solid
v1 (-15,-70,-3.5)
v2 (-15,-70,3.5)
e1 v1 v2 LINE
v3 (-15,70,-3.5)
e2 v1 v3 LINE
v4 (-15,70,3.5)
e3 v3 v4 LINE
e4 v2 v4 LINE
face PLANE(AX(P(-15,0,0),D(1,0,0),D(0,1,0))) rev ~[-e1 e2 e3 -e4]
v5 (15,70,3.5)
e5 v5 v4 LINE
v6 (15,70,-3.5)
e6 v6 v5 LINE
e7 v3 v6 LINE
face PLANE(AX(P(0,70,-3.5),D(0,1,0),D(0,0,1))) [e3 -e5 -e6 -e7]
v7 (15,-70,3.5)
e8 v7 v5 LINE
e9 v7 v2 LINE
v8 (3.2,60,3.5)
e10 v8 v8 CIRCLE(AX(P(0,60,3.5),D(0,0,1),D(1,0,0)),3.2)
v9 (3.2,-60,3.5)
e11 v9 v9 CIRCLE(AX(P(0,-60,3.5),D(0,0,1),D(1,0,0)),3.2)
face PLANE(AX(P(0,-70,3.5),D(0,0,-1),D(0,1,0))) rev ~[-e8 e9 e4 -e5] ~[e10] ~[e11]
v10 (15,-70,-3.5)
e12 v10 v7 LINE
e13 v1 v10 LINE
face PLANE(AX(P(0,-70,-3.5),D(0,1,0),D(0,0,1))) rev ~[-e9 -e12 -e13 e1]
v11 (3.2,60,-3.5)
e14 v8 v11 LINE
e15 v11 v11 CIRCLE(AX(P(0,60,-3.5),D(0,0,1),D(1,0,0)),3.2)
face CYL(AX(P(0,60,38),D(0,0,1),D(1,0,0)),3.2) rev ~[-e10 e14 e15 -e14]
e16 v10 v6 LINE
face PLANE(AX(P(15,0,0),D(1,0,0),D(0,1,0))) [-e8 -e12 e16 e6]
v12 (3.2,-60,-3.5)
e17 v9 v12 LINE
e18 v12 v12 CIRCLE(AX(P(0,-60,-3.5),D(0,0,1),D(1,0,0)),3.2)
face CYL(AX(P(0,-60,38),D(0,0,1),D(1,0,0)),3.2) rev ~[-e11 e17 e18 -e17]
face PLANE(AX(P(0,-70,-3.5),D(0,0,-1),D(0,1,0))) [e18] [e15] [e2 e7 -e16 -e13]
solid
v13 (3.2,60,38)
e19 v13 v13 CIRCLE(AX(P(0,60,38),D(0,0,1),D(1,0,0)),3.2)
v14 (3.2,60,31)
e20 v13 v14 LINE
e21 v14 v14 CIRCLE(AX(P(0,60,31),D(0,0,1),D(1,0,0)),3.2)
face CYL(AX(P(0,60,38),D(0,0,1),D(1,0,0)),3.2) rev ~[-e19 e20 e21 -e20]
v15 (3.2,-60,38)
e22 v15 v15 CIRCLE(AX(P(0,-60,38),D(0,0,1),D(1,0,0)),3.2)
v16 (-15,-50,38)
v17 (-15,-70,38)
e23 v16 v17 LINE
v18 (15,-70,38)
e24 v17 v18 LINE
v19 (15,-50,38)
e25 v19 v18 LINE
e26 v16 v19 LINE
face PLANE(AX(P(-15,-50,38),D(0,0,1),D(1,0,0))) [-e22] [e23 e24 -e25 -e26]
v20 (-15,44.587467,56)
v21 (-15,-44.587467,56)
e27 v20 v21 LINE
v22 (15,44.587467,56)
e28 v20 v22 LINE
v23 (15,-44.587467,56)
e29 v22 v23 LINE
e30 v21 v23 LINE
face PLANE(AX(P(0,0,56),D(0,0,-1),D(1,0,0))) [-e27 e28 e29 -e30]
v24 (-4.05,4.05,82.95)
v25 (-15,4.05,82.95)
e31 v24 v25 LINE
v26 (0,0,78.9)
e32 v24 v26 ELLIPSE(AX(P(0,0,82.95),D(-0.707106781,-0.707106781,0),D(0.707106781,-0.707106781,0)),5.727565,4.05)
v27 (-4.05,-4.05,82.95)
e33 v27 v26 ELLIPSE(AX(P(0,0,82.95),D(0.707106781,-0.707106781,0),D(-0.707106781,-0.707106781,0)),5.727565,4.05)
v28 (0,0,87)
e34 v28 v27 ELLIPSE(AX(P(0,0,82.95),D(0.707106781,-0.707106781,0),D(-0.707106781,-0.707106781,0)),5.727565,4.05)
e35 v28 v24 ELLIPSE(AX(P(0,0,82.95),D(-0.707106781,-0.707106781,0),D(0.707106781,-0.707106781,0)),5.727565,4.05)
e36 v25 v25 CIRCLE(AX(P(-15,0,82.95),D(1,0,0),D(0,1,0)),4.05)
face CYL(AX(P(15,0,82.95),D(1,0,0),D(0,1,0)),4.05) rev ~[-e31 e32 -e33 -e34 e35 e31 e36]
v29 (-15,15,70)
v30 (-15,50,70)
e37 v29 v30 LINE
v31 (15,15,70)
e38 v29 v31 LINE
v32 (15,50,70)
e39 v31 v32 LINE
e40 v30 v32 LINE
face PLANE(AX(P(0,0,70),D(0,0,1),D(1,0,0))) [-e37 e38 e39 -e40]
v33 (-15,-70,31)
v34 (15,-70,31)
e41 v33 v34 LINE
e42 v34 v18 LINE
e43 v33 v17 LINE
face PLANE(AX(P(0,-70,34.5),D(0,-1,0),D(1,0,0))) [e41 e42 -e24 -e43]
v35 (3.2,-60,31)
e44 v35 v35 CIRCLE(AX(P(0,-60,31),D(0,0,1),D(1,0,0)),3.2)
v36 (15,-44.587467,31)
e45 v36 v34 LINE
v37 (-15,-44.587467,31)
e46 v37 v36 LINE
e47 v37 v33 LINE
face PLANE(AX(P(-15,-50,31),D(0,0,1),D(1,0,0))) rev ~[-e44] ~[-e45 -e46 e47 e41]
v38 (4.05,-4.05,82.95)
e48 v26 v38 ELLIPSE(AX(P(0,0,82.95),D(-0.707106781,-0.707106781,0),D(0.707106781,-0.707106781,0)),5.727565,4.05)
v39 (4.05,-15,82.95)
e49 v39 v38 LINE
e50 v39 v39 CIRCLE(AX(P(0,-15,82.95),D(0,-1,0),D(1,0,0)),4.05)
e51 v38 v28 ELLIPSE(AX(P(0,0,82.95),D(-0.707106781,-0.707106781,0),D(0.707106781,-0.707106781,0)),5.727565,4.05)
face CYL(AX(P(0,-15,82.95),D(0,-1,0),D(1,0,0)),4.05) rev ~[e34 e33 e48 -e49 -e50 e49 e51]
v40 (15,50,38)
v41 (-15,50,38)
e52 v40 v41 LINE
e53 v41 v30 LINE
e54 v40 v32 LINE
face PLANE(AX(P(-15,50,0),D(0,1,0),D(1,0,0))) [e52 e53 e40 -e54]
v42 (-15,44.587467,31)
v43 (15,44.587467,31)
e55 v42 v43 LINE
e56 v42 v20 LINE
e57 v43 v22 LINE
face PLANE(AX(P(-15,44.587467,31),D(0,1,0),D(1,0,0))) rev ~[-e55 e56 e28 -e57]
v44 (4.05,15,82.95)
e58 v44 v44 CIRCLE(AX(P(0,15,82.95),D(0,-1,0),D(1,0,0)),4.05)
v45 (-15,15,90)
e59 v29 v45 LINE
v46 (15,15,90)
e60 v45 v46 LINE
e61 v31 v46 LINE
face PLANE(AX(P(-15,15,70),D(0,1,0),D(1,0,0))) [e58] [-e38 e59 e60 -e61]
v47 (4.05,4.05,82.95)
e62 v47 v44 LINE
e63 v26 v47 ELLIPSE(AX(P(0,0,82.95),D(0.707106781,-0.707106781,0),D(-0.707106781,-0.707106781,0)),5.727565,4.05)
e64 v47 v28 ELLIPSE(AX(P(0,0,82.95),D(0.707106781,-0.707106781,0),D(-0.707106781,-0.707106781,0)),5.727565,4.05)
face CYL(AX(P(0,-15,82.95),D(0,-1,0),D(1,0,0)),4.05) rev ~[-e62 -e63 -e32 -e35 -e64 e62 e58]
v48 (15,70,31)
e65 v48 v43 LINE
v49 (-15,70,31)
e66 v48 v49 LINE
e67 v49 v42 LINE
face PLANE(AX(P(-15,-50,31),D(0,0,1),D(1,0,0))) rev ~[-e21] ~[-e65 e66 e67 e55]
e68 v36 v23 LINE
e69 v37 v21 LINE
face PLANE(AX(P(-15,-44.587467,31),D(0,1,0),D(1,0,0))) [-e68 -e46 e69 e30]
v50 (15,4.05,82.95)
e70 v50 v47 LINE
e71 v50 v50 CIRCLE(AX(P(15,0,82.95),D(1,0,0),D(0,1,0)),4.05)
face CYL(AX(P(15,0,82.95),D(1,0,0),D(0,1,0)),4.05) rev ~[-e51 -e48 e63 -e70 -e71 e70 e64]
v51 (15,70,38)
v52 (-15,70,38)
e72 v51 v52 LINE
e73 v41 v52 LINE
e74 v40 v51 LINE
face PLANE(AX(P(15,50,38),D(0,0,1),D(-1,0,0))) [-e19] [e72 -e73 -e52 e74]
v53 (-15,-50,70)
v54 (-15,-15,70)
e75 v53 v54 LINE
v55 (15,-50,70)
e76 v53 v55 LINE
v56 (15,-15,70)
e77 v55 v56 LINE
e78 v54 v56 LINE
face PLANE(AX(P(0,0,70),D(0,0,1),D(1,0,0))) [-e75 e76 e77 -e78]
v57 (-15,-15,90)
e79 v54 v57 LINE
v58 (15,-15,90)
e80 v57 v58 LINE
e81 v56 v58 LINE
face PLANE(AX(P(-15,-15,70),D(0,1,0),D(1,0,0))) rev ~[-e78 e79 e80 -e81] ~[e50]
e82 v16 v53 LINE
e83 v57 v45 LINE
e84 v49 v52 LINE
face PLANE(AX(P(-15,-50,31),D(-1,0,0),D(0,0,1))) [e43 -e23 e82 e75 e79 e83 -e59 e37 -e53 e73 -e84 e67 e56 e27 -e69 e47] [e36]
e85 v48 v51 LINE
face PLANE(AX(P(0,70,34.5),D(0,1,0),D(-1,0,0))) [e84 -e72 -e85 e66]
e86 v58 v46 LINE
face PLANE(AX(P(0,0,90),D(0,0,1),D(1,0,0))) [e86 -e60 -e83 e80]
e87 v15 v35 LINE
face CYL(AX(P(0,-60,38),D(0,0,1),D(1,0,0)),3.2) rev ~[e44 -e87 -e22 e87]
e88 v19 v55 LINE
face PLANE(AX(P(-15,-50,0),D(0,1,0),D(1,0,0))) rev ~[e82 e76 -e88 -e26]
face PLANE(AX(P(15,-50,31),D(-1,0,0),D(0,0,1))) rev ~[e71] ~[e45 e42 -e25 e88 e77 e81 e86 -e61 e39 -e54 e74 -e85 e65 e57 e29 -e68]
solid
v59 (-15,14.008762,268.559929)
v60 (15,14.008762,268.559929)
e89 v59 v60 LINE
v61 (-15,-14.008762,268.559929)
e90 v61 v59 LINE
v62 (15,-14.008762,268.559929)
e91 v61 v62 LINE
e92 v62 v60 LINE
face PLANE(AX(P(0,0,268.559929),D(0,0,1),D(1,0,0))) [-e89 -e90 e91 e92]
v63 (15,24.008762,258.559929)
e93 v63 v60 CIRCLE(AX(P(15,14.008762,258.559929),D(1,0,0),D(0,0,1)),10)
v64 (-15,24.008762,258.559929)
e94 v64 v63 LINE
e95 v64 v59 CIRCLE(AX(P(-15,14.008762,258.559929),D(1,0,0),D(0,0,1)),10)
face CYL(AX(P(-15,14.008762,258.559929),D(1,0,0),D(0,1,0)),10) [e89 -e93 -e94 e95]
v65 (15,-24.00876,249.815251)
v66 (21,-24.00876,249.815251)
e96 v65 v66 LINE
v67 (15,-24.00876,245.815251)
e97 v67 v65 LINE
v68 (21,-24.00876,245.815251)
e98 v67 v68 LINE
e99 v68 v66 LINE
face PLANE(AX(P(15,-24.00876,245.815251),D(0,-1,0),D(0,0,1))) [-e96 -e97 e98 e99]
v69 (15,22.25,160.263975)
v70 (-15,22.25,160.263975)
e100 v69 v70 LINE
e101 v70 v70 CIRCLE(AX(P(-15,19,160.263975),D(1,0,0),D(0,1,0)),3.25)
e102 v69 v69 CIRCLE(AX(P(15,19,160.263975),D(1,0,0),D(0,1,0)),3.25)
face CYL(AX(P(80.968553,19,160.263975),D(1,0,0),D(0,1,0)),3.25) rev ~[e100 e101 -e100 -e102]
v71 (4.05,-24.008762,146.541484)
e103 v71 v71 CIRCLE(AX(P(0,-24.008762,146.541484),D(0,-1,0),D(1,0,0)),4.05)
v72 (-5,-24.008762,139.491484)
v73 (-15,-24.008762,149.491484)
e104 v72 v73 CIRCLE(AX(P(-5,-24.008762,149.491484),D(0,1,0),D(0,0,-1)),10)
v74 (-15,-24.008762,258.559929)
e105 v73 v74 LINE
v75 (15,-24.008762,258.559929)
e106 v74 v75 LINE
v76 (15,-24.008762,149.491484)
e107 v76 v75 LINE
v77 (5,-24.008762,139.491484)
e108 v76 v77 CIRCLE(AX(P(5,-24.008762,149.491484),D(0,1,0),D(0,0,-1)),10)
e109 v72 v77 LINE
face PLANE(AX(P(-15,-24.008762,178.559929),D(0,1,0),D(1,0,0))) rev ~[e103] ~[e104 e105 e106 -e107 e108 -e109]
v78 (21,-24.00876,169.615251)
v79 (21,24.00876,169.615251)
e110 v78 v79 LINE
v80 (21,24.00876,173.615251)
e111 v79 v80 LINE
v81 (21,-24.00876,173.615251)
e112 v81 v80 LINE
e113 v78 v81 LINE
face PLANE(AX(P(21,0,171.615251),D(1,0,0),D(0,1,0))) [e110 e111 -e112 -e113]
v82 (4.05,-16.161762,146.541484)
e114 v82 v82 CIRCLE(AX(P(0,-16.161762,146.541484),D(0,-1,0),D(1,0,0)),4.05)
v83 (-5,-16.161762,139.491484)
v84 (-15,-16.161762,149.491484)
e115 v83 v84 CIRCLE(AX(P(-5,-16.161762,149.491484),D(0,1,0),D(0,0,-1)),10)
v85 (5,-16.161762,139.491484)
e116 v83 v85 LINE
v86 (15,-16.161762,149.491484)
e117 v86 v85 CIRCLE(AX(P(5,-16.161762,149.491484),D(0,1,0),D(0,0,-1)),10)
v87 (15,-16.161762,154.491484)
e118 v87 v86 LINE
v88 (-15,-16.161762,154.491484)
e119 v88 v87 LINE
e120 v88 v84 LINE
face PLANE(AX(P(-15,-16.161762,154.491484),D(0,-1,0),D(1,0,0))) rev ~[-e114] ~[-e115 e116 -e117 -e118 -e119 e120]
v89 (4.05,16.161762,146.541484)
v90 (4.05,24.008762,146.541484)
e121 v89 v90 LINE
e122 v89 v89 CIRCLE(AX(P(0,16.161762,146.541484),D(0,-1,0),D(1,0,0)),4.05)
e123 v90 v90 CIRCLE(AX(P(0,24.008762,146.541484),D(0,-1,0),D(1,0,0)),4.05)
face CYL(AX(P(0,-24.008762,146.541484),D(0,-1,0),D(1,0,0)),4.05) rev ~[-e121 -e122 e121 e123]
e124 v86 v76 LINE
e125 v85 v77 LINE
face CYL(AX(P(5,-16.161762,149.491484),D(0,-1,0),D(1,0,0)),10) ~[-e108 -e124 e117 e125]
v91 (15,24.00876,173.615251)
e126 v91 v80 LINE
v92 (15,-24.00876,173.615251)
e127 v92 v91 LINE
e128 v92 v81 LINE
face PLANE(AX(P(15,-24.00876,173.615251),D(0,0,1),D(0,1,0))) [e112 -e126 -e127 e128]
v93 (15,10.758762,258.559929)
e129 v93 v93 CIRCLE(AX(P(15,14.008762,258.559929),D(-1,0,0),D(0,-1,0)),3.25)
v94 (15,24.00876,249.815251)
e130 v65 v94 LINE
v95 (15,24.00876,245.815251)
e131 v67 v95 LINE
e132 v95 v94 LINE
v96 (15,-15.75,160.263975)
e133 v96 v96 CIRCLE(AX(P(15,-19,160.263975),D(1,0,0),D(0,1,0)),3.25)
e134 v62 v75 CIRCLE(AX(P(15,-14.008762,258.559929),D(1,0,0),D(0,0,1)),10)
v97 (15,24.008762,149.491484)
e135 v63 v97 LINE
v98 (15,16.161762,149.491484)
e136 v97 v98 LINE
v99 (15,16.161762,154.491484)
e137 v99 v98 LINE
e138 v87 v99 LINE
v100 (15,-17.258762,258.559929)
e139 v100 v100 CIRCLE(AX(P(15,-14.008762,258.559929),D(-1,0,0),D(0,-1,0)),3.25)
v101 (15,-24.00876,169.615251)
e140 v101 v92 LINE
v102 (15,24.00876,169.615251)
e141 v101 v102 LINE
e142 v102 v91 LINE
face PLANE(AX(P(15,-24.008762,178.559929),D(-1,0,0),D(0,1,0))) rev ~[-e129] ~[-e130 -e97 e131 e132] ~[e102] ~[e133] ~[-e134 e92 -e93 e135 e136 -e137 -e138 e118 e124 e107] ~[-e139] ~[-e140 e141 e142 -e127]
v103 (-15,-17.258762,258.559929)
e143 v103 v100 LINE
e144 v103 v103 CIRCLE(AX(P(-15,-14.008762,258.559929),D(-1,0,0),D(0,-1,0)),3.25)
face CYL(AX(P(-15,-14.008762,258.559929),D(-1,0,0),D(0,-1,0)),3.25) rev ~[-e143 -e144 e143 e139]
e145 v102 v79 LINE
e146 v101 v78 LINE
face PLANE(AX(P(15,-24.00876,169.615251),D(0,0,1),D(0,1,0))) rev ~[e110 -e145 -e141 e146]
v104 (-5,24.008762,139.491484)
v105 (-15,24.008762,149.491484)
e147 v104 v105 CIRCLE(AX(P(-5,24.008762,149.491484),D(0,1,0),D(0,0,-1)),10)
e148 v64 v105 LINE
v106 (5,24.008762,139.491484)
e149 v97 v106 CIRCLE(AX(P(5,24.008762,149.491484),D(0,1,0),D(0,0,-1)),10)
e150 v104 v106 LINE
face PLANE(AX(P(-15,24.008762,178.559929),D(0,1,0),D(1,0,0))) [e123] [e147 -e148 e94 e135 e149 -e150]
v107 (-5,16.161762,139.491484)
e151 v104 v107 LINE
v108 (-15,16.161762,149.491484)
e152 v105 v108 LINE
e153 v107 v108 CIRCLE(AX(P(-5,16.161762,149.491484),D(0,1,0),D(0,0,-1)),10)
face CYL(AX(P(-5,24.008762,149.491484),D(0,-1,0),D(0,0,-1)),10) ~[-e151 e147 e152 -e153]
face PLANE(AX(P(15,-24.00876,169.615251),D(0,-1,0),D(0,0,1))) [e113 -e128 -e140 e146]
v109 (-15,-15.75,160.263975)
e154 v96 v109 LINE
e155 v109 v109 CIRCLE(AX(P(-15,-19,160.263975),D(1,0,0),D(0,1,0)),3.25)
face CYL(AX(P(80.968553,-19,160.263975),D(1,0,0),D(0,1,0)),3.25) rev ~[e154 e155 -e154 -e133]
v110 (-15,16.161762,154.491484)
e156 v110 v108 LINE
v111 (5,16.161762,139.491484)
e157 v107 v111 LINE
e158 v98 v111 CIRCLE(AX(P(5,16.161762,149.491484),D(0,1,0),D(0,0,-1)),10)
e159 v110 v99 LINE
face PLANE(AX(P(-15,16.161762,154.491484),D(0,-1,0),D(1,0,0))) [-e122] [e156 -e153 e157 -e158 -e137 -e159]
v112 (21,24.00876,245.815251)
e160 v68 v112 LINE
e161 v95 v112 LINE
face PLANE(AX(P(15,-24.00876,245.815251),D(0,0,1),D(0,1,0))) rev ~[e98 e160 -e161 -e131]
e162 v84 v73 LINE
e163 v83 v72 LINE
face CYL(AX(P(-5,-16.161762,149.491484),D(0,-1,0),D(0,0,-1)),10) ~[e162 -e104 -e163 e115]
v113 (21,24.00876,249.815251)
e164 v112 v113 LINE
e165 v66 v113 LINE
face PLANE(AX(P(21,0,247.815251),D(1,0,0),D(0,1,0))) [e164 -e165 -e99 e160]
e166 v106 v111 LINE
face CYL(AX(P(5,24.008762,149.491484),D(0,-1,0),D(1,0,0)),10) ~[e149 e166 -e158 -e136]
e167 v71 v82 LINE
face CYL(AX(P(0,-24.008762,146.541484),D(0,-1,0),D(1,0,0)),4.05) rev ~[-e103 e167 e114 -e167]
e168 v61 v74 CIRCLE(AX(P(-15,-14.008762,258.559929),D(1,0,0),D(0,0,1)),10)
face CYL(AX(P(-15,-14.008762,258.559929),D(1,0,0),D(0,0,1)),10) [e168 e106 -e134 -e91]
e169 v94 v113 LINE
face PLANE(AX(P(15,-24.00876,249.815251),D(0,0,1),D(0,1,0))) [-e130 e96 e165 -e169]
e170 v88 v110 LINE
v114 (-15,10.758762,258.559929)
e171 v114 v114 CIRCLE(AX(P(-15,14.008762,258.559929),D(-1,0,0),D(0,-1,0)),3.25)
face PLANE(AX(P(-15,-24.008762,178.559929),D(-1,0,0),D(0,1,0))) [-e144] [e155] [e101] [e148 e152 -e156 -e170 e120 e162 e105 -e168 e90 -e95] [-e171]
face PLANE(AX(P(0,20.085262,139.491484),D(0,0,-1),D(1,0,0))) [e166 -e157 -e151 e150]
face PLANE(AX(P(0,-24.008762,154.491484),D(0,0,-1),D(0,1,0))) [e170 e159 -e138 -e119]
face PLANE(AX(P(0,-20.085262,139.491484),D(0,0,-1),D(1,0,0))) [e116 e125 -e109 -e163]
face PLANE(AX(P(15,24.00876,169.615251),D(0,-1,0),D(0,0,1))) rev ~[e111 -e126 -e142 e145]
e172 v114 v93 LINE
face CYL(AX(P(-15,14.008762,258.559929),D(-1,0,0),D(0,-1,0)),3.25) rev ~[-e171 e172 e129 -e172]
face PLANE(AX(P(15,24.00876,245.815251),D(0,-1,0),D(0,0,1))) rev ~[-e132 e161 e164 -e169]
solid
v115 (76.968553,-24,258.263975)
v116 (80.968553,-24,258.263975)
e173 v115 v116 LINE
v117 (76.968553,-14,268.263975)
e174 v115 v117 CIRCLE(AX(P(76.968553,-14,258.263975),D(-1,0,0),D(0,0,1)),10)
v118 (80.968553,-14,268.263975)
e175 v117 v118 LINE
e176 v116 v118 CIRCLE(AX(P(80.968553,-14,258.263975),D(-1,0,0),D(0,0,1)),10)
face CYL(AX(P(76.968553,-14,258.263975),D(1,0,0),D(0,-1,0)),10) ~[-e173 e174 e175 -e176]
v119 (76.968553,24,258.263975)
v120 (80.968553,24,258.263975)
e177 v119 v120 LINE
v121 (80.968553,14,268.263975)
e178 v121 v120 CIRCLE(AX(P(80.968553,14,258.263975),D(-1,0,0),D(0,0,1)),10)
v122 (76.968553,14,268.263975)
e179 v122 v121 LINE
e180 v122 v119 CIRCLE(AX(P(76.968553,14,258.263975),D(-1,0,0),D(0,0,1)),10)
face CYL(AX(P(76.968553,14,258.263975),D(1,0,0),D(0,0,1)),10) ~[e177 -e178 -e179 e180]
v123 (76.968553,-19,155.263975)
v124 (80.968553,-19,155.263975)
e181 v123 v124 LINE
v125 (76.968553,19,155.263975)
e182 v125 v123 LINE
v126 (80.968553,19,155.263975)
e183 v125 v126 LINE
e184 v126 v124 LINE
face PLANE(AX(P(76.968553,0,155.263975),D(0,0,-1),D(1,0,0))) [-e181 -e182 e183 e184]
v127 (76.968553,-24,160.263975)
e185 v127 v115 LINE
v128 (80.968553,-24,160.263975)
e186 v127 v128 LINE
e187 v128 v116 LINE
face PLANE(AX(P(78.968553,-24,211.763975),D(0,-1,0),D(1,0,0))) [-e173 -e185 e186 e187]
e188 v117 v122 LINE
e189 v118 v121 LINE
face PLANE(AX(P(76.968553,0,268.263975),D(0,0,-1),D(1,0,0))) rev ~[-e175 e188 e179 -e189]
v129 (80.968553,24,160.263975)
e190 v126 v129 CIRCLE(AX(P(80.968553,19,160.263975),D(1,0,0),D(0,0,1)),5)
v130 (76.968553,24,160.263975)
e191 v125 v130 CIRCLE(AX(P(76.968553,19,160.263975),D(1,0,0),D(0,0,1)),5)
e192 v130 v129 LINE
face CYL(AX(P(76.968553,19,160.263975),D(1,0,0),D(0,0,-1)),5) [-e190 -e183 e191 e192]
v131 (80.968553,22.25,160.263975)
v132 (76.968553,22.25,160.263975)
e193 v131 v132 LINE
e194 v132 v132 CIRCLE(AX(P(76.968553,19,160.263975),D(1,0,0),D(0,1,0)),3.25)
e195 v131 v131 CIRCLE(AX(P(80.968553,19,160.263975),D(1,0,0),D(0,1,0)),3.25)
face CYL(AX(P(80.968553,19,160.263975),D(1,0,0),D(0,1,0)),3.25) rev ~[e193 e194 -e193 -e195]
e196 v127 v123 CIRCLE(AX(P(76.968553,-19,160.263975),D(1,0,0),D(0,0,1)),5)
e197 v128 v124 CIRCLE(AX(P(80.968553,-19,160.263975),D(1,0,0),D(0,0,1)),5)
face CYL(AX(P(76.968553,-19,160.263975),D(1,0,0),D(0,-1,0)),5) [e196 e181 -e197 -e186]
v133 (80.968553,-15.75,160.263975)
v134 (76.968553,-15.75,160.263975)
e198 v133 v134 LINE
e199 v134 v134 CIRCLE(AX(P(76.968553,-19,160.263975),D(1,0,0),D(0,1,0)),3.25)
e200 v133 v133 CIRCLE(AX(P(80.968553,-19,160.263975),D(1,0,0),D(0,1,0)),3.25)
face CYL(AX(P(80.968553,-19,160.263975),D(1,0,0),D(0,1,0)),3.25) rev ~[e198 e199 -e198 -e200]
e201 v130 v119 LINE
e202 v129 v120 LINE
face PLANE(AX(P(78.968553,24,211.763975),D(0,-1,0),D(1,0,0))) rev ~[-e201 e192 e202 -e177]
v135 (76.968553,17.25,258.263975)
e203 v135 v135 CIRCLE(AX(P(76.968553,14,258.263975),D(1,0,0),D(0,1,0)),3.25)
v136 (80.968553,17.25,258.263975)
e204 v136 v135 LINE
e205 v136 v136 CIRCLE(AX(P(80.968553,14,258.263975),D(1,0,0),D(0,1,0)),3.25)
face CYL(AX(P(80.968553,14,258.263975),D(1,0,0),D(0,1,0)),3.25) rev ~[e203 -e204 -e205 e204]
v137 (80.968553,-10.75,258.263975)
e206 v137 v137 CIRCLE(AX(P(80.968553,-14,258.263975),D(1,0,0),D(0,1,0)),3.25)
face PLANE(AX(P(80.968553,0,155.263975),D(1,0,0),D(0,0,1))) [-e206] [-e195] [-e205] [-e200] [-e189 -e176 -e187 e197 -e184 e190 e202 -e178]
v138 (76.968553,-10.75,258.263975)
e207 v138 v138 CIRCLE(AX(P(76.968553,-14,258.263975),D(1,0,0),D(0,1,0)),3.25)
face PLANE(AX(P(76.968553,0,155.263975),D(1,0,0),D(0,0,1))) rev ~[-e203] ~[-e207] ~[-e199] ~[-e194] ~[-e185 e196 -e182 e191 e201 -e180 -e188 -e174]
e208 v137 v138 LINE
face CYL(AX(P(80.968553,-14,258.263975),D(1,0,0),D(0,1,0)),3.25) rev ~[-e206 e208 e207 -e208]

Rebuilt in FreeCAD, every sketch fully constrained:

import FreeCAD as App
import Part
import Sketcher
from FreeCAD import Vector


def edges_at(feature, points):
    """Names of the edges that pass closest to the given points."""
    edges = feature.Shape.Edges
    near = lambda p: min(range(len(edges)), key=lambda i: edges[i].distToShape(Part.Vertex(*p))[0])
    return sorted({f"Edge{near(p) + 1}" for p in points})

doc = App.newDocument("Part")
body = doc.addObject("PartDesign::Body", "Body")

sketch1 = body.newObject("Sketcher::SketchObject", "Sketch")
sketch1.AttachmentSupport = (doc.getObject("XY_Plane"), [""])
sketch1.MapMode = "FlatFace"
sketch1.addGeometry([
    Part.LineSegment(Vector(-15, 50, 0), Vector(-15, -50, 0)),
    Part.LineSegment(Vector(-15, -50, 0), Vector(15, -50, 0)),
    Part.LineSegment(Vector(15, -50, 0), Vector(15, 50, 0)),
    Part.LineSegment(Vector(15, 50, 0), Vector(-15, 50, 0)),
], False)
sketch1.addConstraint([
    Sketcher.Constraint("Coincident", 0, 2, 1, 1),
    Sketcher.Constraint("Coincident", 1, 2, 2, 1),
    Sketcher.Constraint("Coincident", 2, 2, 3, 1),
    Sketcher.Constraint("Coincident", 3, 2, 0, 1),
    Sketcher.Constraint("Vertical", 0),
    Sketcher.Constraint("Horizontal", 1),
    Sketcher.Constraint("Vertical", 2),
    Sketcher.Constraint("Horizontal", 3),
    Sketcher.Constraint("Symmetric", 0, 2, 2, 2, -1, 1),
    Sketcher.Constraint("DistanceX", 1, 1, 1, 2, 30.0),
    Sketcher.Constraint("DistanceY", 0, 2, 0, 1, 100.0),
])
pad1 = body.newObject("PartDesign::Pad", "Pad")
pad1.Profile = sketch1
pad1.Length = 70

sketch2 = body.newObject("Sketcher::SketchObject", "Sketch001")
sketch2.AttachmentSupport = (doc.getObject("XY_Plane"), [""])
sketch2.MapMode = "FlatFace"
sketch2.AttachmentOffset = App.Placement(Vector(0, 0, 70), App.Rotation())
sketch2.addGeometry([
    Part.LineSegment(Vector(-15, 15, 0), Vector(-15, -15, 0)),
    Part.LineSegment(Vector(-15, -15, 0), Vector(15, -15, 0)),
    Part.LineSegment(Vector(15, -15, 0), Vector(15, 15, 0)),
    Part.LineSegment(Vector(15, 15, 0), Vector(-15, 15, 0)),
], False)
sketch2.addConstraint([
    Sketcher.Constraint("Coincident", 0, 2, 1, 1),
    Sketcher.Constraint("Coincident", 1, 2, 2, 1),
    Sketcher.Constraint("Coincident", 2, 2, 3, 1),
    Sketcher.Constraint("Coincident", 3, 2, 0, 1),
    Sketcher.Constraint("Vertical", 0),
    Sketcher.Constraint("Horizontal", 1),
    Sketcher.Constraint("Vertical", 2),
    Sketcher.Constraint("Horizontal", 3),
    Sketcher.Constraint("Symmetric", 0, 2, 2, 2, -1, 1),
    Sketcher.Constraint("Equal", 3, 0),
    Sketcher.Constraint("DistanceX", 1, 1, 1, 2, 30.0),
])
pad2 = body.newObject("PartDesign::Pad", "Pad001")
pad2.Profile = sketch2
pad2.Length = 20

sketch3 = body.newObject("Sketcher::SketchObject", "Sketch002")
sketch3.AttachmentSupport = (doc.getObject("XZ_Plane"), [""])
sketch3.MapMode = "FlatFace"
sketch3.AttachmentOffset = App.Placement(Vector(0, 0, 15), App.Rotation())
sketch3.addGeometry(Part.Circle(Vector(0, 83, 0), Vector(0, 0, 1), 4), False)
sketch3.addConstraint([
    Sketcher.Constraint("PointOnObject", 0, 3, -2),
    Sketcher.Constraint("Diameter", 0, 8.1),
    Sketcher.Constraint("DistanceY", -1, 1, 0, 3, 82.95),
])
pocket1 = body.newObject("PartDesign::Pocket", "Pocket")
pocket1.Profile = sketch3
pocket1.Length = 31.5

sketch4 = body.newObject("Sketcher::SketchObject", "Sketch003")
sketch4.AttachmentSupport = (doc.getObject("XY_Plane"), [""])
sketch4.MapMode = "FlatFace"
sketch4.addGeometry([
    Part.LineSegment(Vector(-15, -50, 0), Vector(-15, 50, 0)),
    Part.LineSegment(Vector(-15, 50, 0), Vector(15, 50, 0)),
    Part.LineSegment(Vector(15, 50, 0), Vector(15, -50, 0)),
    Part.LineSegment(Vector(15, -50, 0), Vector(-15, -50, 0)),
], False)
sketch4.addConstraint([
    Sketcher.Constraint("Coincident", 0, 2, 1, 1),
    Sketcher.Constraint("Coincident", 1, 2, 2, 1),
    Sketcher.Constraint("Coincident", 2, 2, 3, 1),
    Sketcher.Constraint("Coincident", 3, 2, 0, 1),
    Sketcher.Constraint("Vertical", 0),
    Sketcher.Constraint("Horizontal", 1),
    Sketcher.Constraint("Vertical", 2),
    Sketcher.Constraint("Horizontal", 3),
    Sketcher.Constraint("Symmetric", 0, 2, 2, 2, -1, 1),
    Sketcher.Constraint("DistanceX", 1, 1, 1, 2, 30.0),
    Sketcher.Constraint("DistanceY", 0, 1, 0, 2, 100.0),
])
pocket2 = body.newObject("PartDesign::Pocket", "Pocket001")
pocket2.Profile = sketch4
pocket2.Length = 31
pocket2.Reversed = True

sketch5 = body.newObject("Sketcher::SketchObject", "Sketch004")
sketch5.AttachmentSupport = (doc.getObject("XZ_Plane"), [""])
sketch5.MapMode = "FlatFace"
sketch5.AttachmentOffset = App.Placement(Vector(0, 0, -50), App.Rotation())
sketch5.addGeometry([
    Part.LineSegment(Vector(15, 38, 0), Vector(15, 31, 0)),
    Part.LineSegment(Vector(15, 31, 0), Vector(-15, 31, 0)),
    Part.LineSegment(Vector(-15, 31, 0), Vector(-15, 38, 0)),
    Part.LineSegment(Vector(-15, 38, 0), Vector(15, 38, 0)),
], False)
sketch5.addConstraint([
    Sketcher.Constraint("Coincident", 0, 2, 1, 1),
    Sketcher.Constraint("Coincident", 1, 2, 2, 1),
    Sketcher.Constraint("Coincident", 2, 2, 3, 1),
    Sketcher.Constraint("Coincident", 3, 2, 0, 1),
    Sketcher.Constraint("Vertical", 0),
    Sketcher.Constraint("Horizontal", 1),
    Sketcher.Constraint("Vertical", 2),
    Sketcher.Constraint("Horizontal", 3),
    Sketcher.Constraint("DistanceX", 1, 2, 1, 1, 30.0),
    Sketcher.Constraint("DistanceY", 0, 2, 0, 1, 7.0),
    Sketcher.Constraint("DistanceX", -1, 1, 0, 2, 15.0),
    Sketcher.Constraint("DistanceY", -1, 1, 0, 2, 31.0),
])
pad3 = body.newObject("PartDesign::Pad", "Pad002")
pad3.Profile = sketch5
pad3.Length = 20
pad3.Reversed = True

sketch6 = body.newObject("Sketcher::SketchObject", "Sketch005")
sketch6.AttachmentSupport = (doc.getObject("XZ_Plane"), [""])
sketch6.MapMode = "FlatFace"
sketch6.AttachmentOffset = App.Placement(Vector(0, 0, 50), App.Rotation())
sketch6.addGeometry([
    Part.LineSegment(Vector(-15, 38, 0), Vector(-15, 31, 0)),
    Part.LineSegment(Vector(-15, 31, 0), Vector(15, 31, 0)),
    Part.LineSegment(Vector(15, 31, 0), Vector(15, 38, 0)),
    Part.LineSegment(Vector(15, 38, 0), Vector(-15, 38, 0)),
], False)
sketch6.addConstraint([
    Sketcher.Constraint("Coincident", 0, 2, 1, 1),
    Sketcher.Constraint("Coincident", 1, 2, 2, 1),
    Sketcher.Constraint("Coincident", 2, 2, 3, 1),
    Sketcher.Constraint("Coincident", 3, 2, 0, 1),
    Sketcher.Constraint("Vertical", 0),
    Sketcher.Constraint("Horizontal", 1),
    Sketcher.Constraint("Vertical", 2),
    Sketcher.Constraint("Horizontal", 3),
    Sketcher.Constraint("DistanceX", 1, 1, 1, 2, 30.0),
    Sketcher.Constraint("DistanceY", 0, 2, 0, 1, 7.0),
    Sketcher.Constraint("DistanceX", 0, 2, -1, 1, 15.0),
    Sketcher.Constraint("DistanceY", -1, 1, 0, 2, 31.0),
])
pad4 = body.newObject("PartDesign::Pad", "Pad003")
pad4.Profile = sketch6
pad4.Length = 20
body2 = doc.addObject("PartDesign::Body", "Body001")

sketch7 = body2.newObject("Sketcher::SketchObject", "Sketch006")
sketch7.AttachmentSupport = (doc.getObject("YZ_Plane001"), [""])
sketch7.MapMode = "FlatFace"
sketch7.addGeometry([
    Part.LineSegment(Vector(-24, 179, 0), Vector(-24, 154, 0)),
    Part.LineSegment(Vector(-24, 154, 0), Vector(24, 154, 0)),
    Part.LineSegment(Vector(24, 154, 0), Vector(24, 179, 0)),
    Part.LineSegment(Vector(24, 179, 0), Vector(-24, 179, 0)),
], False)
sketch7.addConstraint([
    Sketcher.Constraint("Coincident", 0, 2, 1, 1),
    Sketcher.Constraint("Coincident", 1, 2, 2, 1),
    Sketcher.Constraint("Coincident", 2, 2, 3, 1),
    Sketcher.Constraint("Coincident", 3, 2, 0, 1),
    Sketcher.Constraint("Vertical", 0),
    Sketcher.Constraint("Horizontal", 1),
    Sketcher.Constraint("Vertical", 2),
    Sketcher.Constraint("Horizontal", 3),
    Sketcher.Constraint("DistanceX", 1, 1, 1, 2, 48.017524),
    Sketcher.Constraint("DistanceY", 0, 2, 0, 1, 24.068445),
    Sketcher.Constraint("DistanceY", -1, 1, 2, 2, 178.559929),
    Sketcher.Constraint("DistanceX", 0, 2, -1, 1, 24.008762),
])
pad5 = body2.newObject("PartDesign::Pad", "Pad004")
pad5.Profile = sketch7
pad5.Length = 30
pad5.Midplane = True

sketch8 = body2.newObject("Sketcher::SketchObject", "Sketch007")
sketch8.AttachmentSupport = (doc.getObject("XY_Plane001"), [""])
sketch8.MapMode = "FlatFace"
sketch8.AttachmentOffset = App.Placement(Vector(0, 0, 154.491484), App.Rotation())
sketch8.addGeometry([
    Part.LineSegment(Vector(-15, 16, 0), Vector(-15, 24, 0)),
    Part.LineSegment(Vector(-15, 24, 0), Vector(15, 24, 0)),
    Part.LineSegment(Vector(15, 24, 0), Vector(15, 16, 0)),
    Part.LineSegment(Vector(15, 16, 0), Vector(-15, 16, 0)),
], False)
sketch8.addConstraint([
    Sketcher.Constraint("Coincident", 0, 2, 1, 1),
    Sketcher.Constraint("Coincident", 1, 2, 2, 1),
    Sketcher.Constraint("Coincident", 2, 2, 3, 1),
    Sketcher.Constraint("Coincident", 3, 2, 0, 1),
    Sketcher.Constraint("Vertical", 0),
    Sketcher.Constraint("Horizontal", 1),
    Sketcher.Constraint("Vertical", 2),
    Sketcher.Constraint("Horizontal", 3),
    Sketcher.Constraint("DistanceX", 1, 1, 1, 2, 30.0),
    Sketcher.Constraint("DistanceX", 0, 2, -1, 1, 15.0),
    Sketcher.Constraint("DistanceY", 0, 1, 0, 2, 7.847),
    Sketcher.Constraint("DistanceY", -1, 1, 0, 2, 24.008762),
])
pad6 = body2.newObject("PartDesign::Pad", "Pad005")
pad6.Profile = sketch8
pad6.Length = 15
pad6.Reversed = True

sketch9 = body2.newObject("Sketcher::SketchObject", "Sketch008")
sketch9.AttachmentSupport = (doc.getObject("XY_Plane001"), [""])
sketch9.MapMode = "FlatFace"
sketch9.AttachmentOffset = App.Placement(Vector(0, 0, 154.491484), App.Rotation())
sketch9.addGeometry([
    Part.LineSegment(Vector(-15, -24, 0), Vector(-15, -16, 0)),
    Part.LineSegment(Vector(-15, -16, 0), Vector(15, -16, 0)),
    Part.LineSegment(Vector(15, -16, 0), Vector(15, -24, 0)),
    Part.LineSegment(Vector(15, -24, 0), Vector(-15, -24, 0)),
], False)
sketch9.addConstraint([
    Sketcher.Constraint("Coincident", 0, 2, 1, 1),
    Sketcher.Constraint("Coincident", 1, 2, 2, 1),
    Sketcher.Constraint("Coincident", 2, 2, 3, 1),
    Sketcher.Constraint("Coincident", 3, 2, 0, 1),
    Sketcher.Constraint("Vertical", 0),
    Sketcher.Constraint("Horizontal", 1),
    Sketcher.Constraint("Vertical", 2),
    Sketcher.Constraint("Horizontal", 3),
    Sketcher.Constraint("DistanceX", 1, 1, 1, 2, 30.0),
    Sketcher.Constraint("DistanceX", 0, 2, -1, 1, 15.0),
    Sketcher.Constraint("DistanceY", 0, 1, 0, 2, 7.847),
    Sketcher.Constraint("DistanceY", 0, 2, -1, 1, 16.161762),
])
pad7 = body2.newObject("PartDesign::Pad", "Pad006")
pad7.Profile = sketch9
pad7.Length = 15
pad7.Reversed = True
doc.recompute()

fillet = body2.newObject("PartDesign::Fillet", "Fillet")
fillet.Base = (pad7, edges_at(pad7, [(15, -20.085, 139.491)]))
fillet.Radius = 10
doc.recompute()

fillet2 = body2.newObject("PartDesign::Fillet", "Fillet001")
fillet2.Base = (fillet, edges_at(fillet, [(-15, -20.085, 139.491)]))
fillet2.Radius = 10
doc.recompute()

fillet3 = body2.newObject("PartDesign::Fillet", "Fillet002")
fillet3.Base = (fillet2, edges_at(fillet2, [(15, 20.085, 139.491)]))
fillet3.Radius = 10
doc.recompute()

fillet4 = body2.newObject("PartDesign::Fillet", "Fillet003")
fillet4.Base = (fillet3, edges_at(fillet3, [(-15, 20.085, 139.491)]))
fillet4.Radius = 10

sketch10 = body2.newObject("Sketcher::SketchObject", "Sketch009")
sketch10.AttachmentSupport = (doc.getObject("XZ_Plane001"), [""])
sketch10.MapMode = "FlatFace"
sketch10.AttachmentOffset = App.Placement(Vector(0, 0, 24.008762), App.Rotation())
sketch10.addGeometry(Part.Circle(Vector(0, 146.5, 0), Vector(0, 0, 1), 4), False)
sketch10.addConstraint([
    Sketcher.Constraint("PointOnObject", 0, 3, -2),
    Sketcher.Constraint("Diameter", 0, 8.1),
    Sketcher.Constraint("DistanceY", -1, 1, 0, 3, 146.541484),
])
pocket3 = body2.newObject("PartDesign::Pocket", "Pocket002")
pocket3.Profile = sketch10
pocket3.Length = 49.5

sketch11 = body2.newObject("Sketcher::SketchObject", "Sketch010")
sketch11.AttachmentSupport = (doc.getObject("XY_Plane001"), [""])
sketch11.MapMode = "FlatFace"
sketch11.AttachmentOffset = App.Placement(Vector(0, 0, 178.559929), App.Rotation())
sketch11.addGeometry([
    Part.LineSegment(Vector(-15, 24, 0), Vector(-15, -24, 0)),
    Part.LineSegment(Vector(-15, -24, 0), Vector(15, -24, 0)),
    Part.LineSegment(Vector(15, -24, 0), Vector(15, 24, 0)),
    Part.LineSegment(Vector(15, 24, 0), Vector(-15, 24, 0)),
], False)
sketch11.addConstraint([
    Sketcher.Constraint("Coincident", 0, 2, 1, 1),
    Sketcher.Constraint("Coincident", 1, 2, 2, 1),
    Sketcher.Constraint("Coincident", 2, 2, 3, 1),
    Sketcher.Constraint("Coincident", 3, 2, 0, 1),
    Sketcher.Constraint("Vertical", 0),
    Sketcher.Constraint("Horizontal", 1),
    Sketcher.Constraint("Vertical", 2),
    Sketcher.Constraint("Horizontal", 3),
    Sketcher.Constraint("Symmetric", 0, 2, 2, 2, -1, 1),
    Sketcher.Constraint("DistanceX", 1, 1, 1, 2, 30.0),
    Sketcher.Constraint("DistanceY", 0, 2, 0, 1, 48.017524),
])
pad8 = body2.newObject("PartDesign::Pad", "Pad007")
pad8.Profile = sketch11
pad8.Length = 90
doc.recompute()

fillet5 = body2.newObject("PartDesign::Fillet", "Fillet004")
fillet5.Base = (pad8, edges_at(pad8, [(0, 24.009, 268.56)]))
fillet5.Radius = 10
doc.recompute()

fillet6 = body2.newObject("PartDesign::Fillet", "Fillet005")
fillet6.Base = (fillet5, edges_at(fillet5, [(0, -24.009, 268.56)]))
fillet6.Radius = 10

sketch12 = body2.newObject("Sketcher::SketchObject", "Sketch011")
sketch12.AttachmentSupport = (doc.getObject("YZ_Plane001"), [""])
sketch12.MapMode = "FlatFace"
sketch12.AttachmentOffset = App.Placement(Vector(0, 0, 15), App.Rotation())
sketch12.addGeometry([
    Part.LineSegment(Vector(-24, 249.8, 0), Vector(-24, 245.8, 0)),
    Part.LineSegment(Vector(-24, 245.8, 0), Vector(24, 245.8, 0)),
    Part.LineSegment(Vector(24, 245.8, 0), Vector(24, 249.8, 0)),
    Part.LineSegment(Vector(24, 249.8, 0), Vector(-24, 249.8, 0)),
    Part.LineSegment(Vector(-24, 173.6, 0), Vector(-24, 169.6, 0)),
    Part.LineSegment(Vector(-24, 169.6, 0), Vector(24, 169.6, 0)),
    Part.LineSegment(Vector(24, 169.6, 0), Vector(24, 173.6, 0)),
    Part.LineSegment(Vector(24, 173.6, 0), Vector(-24, 173.6, 0)),
], False)
sketch12.addConstraint([
    Sketcher.Constraint("Coincident", 0, 2, 1, 1),
    Sketcher.Constraint("Coincident", 1, 2, 2, 1),
    Sketcher.Constraint("Coincident", 2, 2, 3, 1),
    Sketcher.Constraint("Coincident", 3, 2, 0, 1),
    Sketcher.Constraint("Coincident", 4, 2, 5, 1),
    Sketcher.Constraint("Coincident", 5, 2, 6, 1),
    Sketcher.Constraint("Coincident", 6, 2, 7, 1),
    Sketcher.Constraint("Coincident", 7, 2, 4, 1),
    Sketcher.Constraint("Vertical", 0),
    Sketcher.Constraint("Horizontal", 1),
    Sketcher.Constraint("Vertical", 2),
    Sketcher.Constraint("Horizontal", 3),
    Sketcher.Constraint("Vertical", 4),
    Sketcher.Constraint("Horizontal", 5),
    Sketcher.Constraint("Vertical", 6),
    Sketcher.Constraint("Horizontal", 7),
    Sketcher.Constraint("Vertical", 3, 2, 4, 2),
    Sketcher.Constraint("Vertical", 2, 2, 5, 2),
    Sketcher.Constraint("Equal", 2, 4),
    Sketcher.Constraint("DistanceY", 0, 2, 0, 1, 4.0),
    Sketcher.Constraint("DistanceY", 4, 2, 0, 2, 76.2),
    Sketcher.Constraint("DistanceX", 1, 1, 1, 2, 48.01752),
    Sketcher.Constraint("DistanceX", 0, 2, -1, 1, 24.00876),
    Sketcher.Constraint("DistanceY", -1, 1, 0, 2, 245.815251),
])
pad9 = body2.newObject("PartDesign::Pad", "Pad008")
pad9.Profile = sketch12
pad9.Length = 6

sketch13 = body2.newObject("Sketcher::SketchObject", "Sketch012")
sketch13.AttachmentSupport = (doc.getObject("YZ_Plane001"), [""])
sketch13.MapMode = "FlatFace"
sketch13.AttachmentOffset = App.Placement(Vector(0, 0, -15), App.Rotation())
sketch13.addGeometry([
    Part.Circle(Vector(14, 258.6, 0), Vector(0, 0, 1), 3.2),
    Part.Circle(Vector(-14, 258.6, 0), Vector(0, 0, 1), 3.2),
], False)
sketch13.addConstraint([
    Sketcher.Constraint("Equal", 0, 1),
    Sketcher.Constraint("Symmetric", 0, 3, 1, 3, -2),
    Sketcher.Constraint("Diameter", 0, 6.5),
    Sketcher.Constraint("DistanceY", -1, 1, 0, 3, 258.559929),
    Sketcher.Constraint("DistanceX", -1, 1, 0, 3, 14.008762),
])
pocket4 = body2.newObject("PartDesign::Pocket", "Pocket003")
pocket4.Profile = sketch13
pocket4.Length = 34.6
pocket4.Reversed = True
body3 = doc.addObject("PartDesign::Body", "Body002")

sketch14 = body3.newObject("Sketcher::SketchObject", "Sketch013")
sketch14.AttachmentSupport = (doc.getObject("XZ_Plane002"), [""])
sketch14.MapMode = "FlatFace"
sketch14.addGeometry([
    Part.LineSegment(Vector(77, 268.3, 0), Vector(77, 155.3, 0)),
    Part.LineSegment(Vector(77, 155.3, 0), Vector(81, 155.3, 0)),
    Part.LineSegment(Vector(81, 155.3, 0), Vector(81, 268.3, 0)),
    Part.LineSegment(Vector(81, 268.3, 0), Vector(77, 268.3, 0)),
], False)
sketch14.addConstraint([
    Sketcher.Constraint("Coincident", 0, 2, 1, 1),
    Sketcher.Constraint("Coincident", 1, 2, 2, 1),
    Sketcher.Constraint("Coincident", 2, 2, 3, 1),
    Sketcher.Constraint("Coincident", 3, 2, 0, 1),
    Sketcher.Constraint("Vertical", 0),
    Sketcher.Constraint("Horizontal", 1),
    Sketcher.Constraint("Vertical", 2),
    Sketcher.Constraint("Horizontal", 3),
    Sketcher.Constraint("DistanceX", 1, 1, 1, 2, 4.0),
    Sketcher.Constraint("DistanceY", 0, 2, 0, 1, 113.0),
    Sketcher.Constraint("DistanceX", -1, 1, 0, 2, 76.968553),
    Sketcher.Constraint("DistanceY", -1, 1, 0, 2, 155.263975),
])
pad10 = body3.newObject("PartDesign::Pad", "Pad009")
pad10.Profile = sketch14
pad10.Length = 48
pad10.Midplane = True
doc.recompute()

fillet7 = body3.newObject("PartDesign::Fillet", "Fillet006")
fillet7.Base = (pad10, edges_at(pad10, [(78.969, -24, 268.264)]))
fillet7.Radius = 10
doc.recompute()

fillet8 = body3.newObject("PartDesign::Fillet", "Fillet007")
fillet8.Base = (fillet7, edges_at(fillet7, [(78.969, 24, 268.264)]))
fillet8.Radius = 10

sketch15 = body3.newObject("Sketcher::SketchObject", "Sketch014")
sketch15.AttachmentSupport = (doc.getObject("YZ_Plane002"), [""])
sketch15.MapMode = "FlatFace"
sketch15.AttachmentOffset = App.Placement(Vector(0, 0, 80.968553), App.Rotation())
sketch15.addGeometry(Part.Circle(Vector(-14, 258.3, 0), Vector(0, 0, 1), 3.2), False)
sketch15.addConstraint([
    Sketcher.Constraint("Diameter", 0, 6.5),
    Sketcher.Constraint("DistanceX", 0, 3, -1, 1, 14.0),
    Sketcher.Constraint("DistanceY", -1, 1, 0, 3, 258.263975),
])
pocket5 = body3.newObject("PartDesign::Pocket", "Pocket004")
pocket5.Profile = sketch15
pocket5.Type = "ThroughAll"
doc.recompute()

fillet9 = body3.newObject("PartDesign::Fillet", "Fillet008")
fillet9.Base = (pocket5, edges_at(pocket5, [(78.969, -24, 155.264)]))
fillet9.Radius = 5
doc.recompute()

fillet10 = body3.newObject("PartDesign::Fillet", "Fillet009")
fillet10.Base = (fillet9, edges_at(fillet9, [(78.969, 24, 155.264)]))
fillet10.Radius = 5

sketch16 = body3.newObject("Sketcher::SketchObject", "Sketch015")
sketch16.AttachmentSupport = (doc.getObject("YZ_Plane002"), [""])
sketch16.MapMode = "FlatFace"
sketch16.AttachmentOffset = App.Placement(Vector(0, 0, 80.968553), App.Rotation())
sketch16.addGeometry(Part.Circle(Vector(14, 258.3, 0), Vector(0, 0, 1), 3.2), False)
sketch16.addConstraint([
    Sketcher.Constraint("Diameter", 0, 6.5),
    Sketcher.Constraint("DistanceX", -1, 1, 0, 3, 14.0),
    Sketcher.Constraint("DistanceY", -1, 1, 0, 3, 258.263975),
])
pocket6 = body3.newObject("PartDesign::Pocket", "Pocket005")
pocket6.Profile = sketch16
pocket6.Length = 25
body4 = doc.addObject("PartDesign::Body", "Body003")

sketch17 = body4.newObject("Sketcher::SketchObject", "Sketch016")
sketch17.AttachmentSupport = (doc.getObject("YZ_Plane003"), [""])
sketch17.MapMode = "FlatFace"
sketch17.AttachmentOffset = App.Placement(Vector(0, 0, 80.968553), App.Rotation())
sketch17.addGeometry(Part.Circle(Vector(-19, 160.3, 0), Vector(0, 0, 1), 3.2), False)
sketch17.addConstraint([
    Sketcher.Constraint("Diameter", 0, 6.5),
    Sketcher.Constraint("DistanceX", 0, 3, -1, 1, 19.0),
    Sketcher.Constraint("DistanceY", -1, 1, 0, 3, 160.263975),
])
pad11 = body4.newObject("PartDesign::Pad", "Pad010")
pad11.Profile = sketch17
pad11.Length = 108.8
pad11.Reversed = True
doc.recompute()

body5 = doc.addObject("PartDesign::Body", "Body004")
body5.BaseFeature = body4
boolean = body2.newObject("PartDesign::Boolean", "Boolean")
boolean.Type = "Cut"
boolean.addObjects([body5])
doc.recompute()

boolean2 = body3.newObject("PartDesign::Boolean", "Boolean001")
boolean2.Type = "Cut"
boolean2.addObjects([body4])
body6 = doc.addObject("PartDesign::Body", "Body005")

sketch18 = body6.newObject("Sketcher::SketchObject", "Sketch017")
sketch18.AttachmentSupport = (doc.getObject("YZ_Plane005"), [""])
sketch18.MapMode = "FlatFace"
sketch18.AttachmentOffset = App.Placement(Vector(0, 0, 80.968553), App.Rotation())
sketch18.addGeometry(Part.Circle(Vector(19, 160.3, 0), Vector(0, 0, 1), 3.2), False)
sketch18.addConstraint([
    Sketcher.Constraint("Diameter", 0, 6.5),
    Sketcher.Constraint("DistanceX", -1, 1, 0, 3, 19.0),
    Sketcher.Constraint("DistanceY", -1, 1, 0, 3, 160.263975),
])
pad12 = body6.newObject("PartDesign::Pad", "Pad011")
pad12.Profile = sketch18
pad12.Length = 95.969553
pad12.Reversed = True
doc.recompute()

body7 = doc.addObject("PartDesign::Body", "Body006")
body7.BaseFeature = body6
boolean3 = body2.newObject("PartDesign::Boolean", "Boolean002")
boolean3.Type = "Cut"
boolean3.addObjects([body7])
doc.recompute()

boolean4 = body3.newObject("PartDesign::Boolean", "Boolean003")
boolean4.Type = "Cut"
boolean4.addObjects([body6])
body8 = doc.addObject("PartDesign::Body", "Body007")

sketch19 = body8.newObject("Sketcher::SketchObject", "Sketch018")
sketch19.AttachmentSupport = (doc.getObject("YZ_Plane007"), [""])
sketch19.MapMode = "FlatFace"
sketch19.addGeometry([
    Part.LineSegment(Vector(-70, 4, 0), Vector(-70, -4, 0)),
    Part.LineSegment(Vector(-70, -4, 0), Vector(70, -4, 0)),
    Part.LineSegment(Vector(70, -4, 0), Vector(70, 4, 0)),
    Part.LineSegment(Vector(70, 4, 0), Vector(-70, 4, 0)),
], False)
sketch19.addConstraint([
    Sketcher.Constraint("Coincident", 0, 2, 1, 1),
    Sketcher.Constraint("Coincident", 1, 2, 2, 1),
    Sketcher.Constraint("Coincident", 2, 2, 3, 1),
    Sketcher.Constraint("Coincident", 3, 2, 0, 1),
    Sketcher.Constraint("Vertical", 0),
    Sketcher.Constraint("Horizontal", 1),
    Sketcher.Constraint("Vertical", 2),
    Sketcher.Constraint("Horizontal", 3),
    Sketcher.Constraint("Symmetric", 0, 2, 2, 2, -1, 1),
    Sketcher.Constraint("DistanceX", 1, 1, 1, 2, 140.0),
    Sketcher.Constraint("DistanceY", 0, 2, 0, 1, 7.0),
])
pad13 = body8.newObject("PartDesign::Pad", "Pad012")
pad13.Profile = sketch19
pad13.Length = 30
pad13.Midplane = True
body9 = doc.addObject("PartDesign::Body", "Body008")

sketch20 = body9.newObject("Sketcher::SketchObject", "Sketch019")
sketch20.AttachmentSupport = (doc.getObject("XY_Plane008"), [""])
sketch20.MapMode = "FlatFace"
sketch20.AttachmentOffset = App.Placement(Vector(0, 0, 38), App.Rotation())
sketch20.addGeometry(Part.Circle(Vector(0, -60, 0), Vector(0, 0, 1), 3.2), False)
sketch20.addConstraint([
    Sketcher.Constraint("PointOnObject", 0, 3, -2),
    Sketcher.Constraint("Diameter", 0, 6.4),
    Sketcher.Constraint("DistanceY", 0, 3, -1, 1, 60.0),
])
pad14 = body9.newObject("PartDesign::Pad", "Pad013")
pad14.Profile = sketch20
pad14.Length = 55.5
pad14.Reversed = True
doc.recompute()

body10 = doc.addObject("PartDesign::Body", "Body009")
body10.BaseFeature = body9
boolean5 = body.newObject("PartDesign::Boolean", "Boolean004")
boolean5.Type = "Cut"
boolean5.addObjects([body10])
doc.recompute()

boolean6 = body8.newObject("PartDesign::Boolean", "Boolean005")
boolean6.Type = "Cut"
boolean6.addObjects([body9])
body11 = doc.addObject("PartDesign::Body", "Body010")

sketch21 = body11.newObject("Sketcher::SketchObject", "Sketch020")
sketch21.AttachmentSupport = (doc.getObject("XY_Plane010"), [""])
sketch21.MapMode = "FlatFace"
sketch21.AttachmentOffset = App.Placement(Vector(0, 0, 38), App.Rotation())
sketch21.addGeometry(Part.Circle(Vector(0, 60, 0), Vector(0, 0, 1), 3.2), False)
sketch21.addConstraint([
    Sketcher.Constraint("PointOnObject", 0, 3, -2),
    Sketcher.Constraint("Diameter", 0, 6.4),
    Sketcher.Constraint("DistanceY", -1, 1, 0, 3, 60.0),
])
pad15 = body11.newObject("PartDesign::Pad", "Pad014")
pad15.Profile = sketch21
pad15.Length = 61.8
pad15.Reversed = True
doc.recompute()

body12 = doc.addObject("PartDesign::Body", "Body011")
body12.BaseFeature = body11
boolean7 = body.newObject("PartDesign::Boolean", "Boolean006")
boolean7.Type = "Cut"
boolean7.addObjects([body12])
doc.recompute()

sketch22 = body.newObject("Sketcher::SketchObject", "Sketch021")
sketch22.AttachmentSupport = (doc.getObject("XY_Plane"), [""])
sketch22.MapMode = "FlatFace"
sketch22.AttachmentOffset = App.Placement(Vector(0, 0, 31), App.Rotation())
sketch22.addGeometry([
    Part.LineSegment(Vector(-15, -45, 0), Vector(-15, 45, 0)),
    Part.LineSegment(Vector(-15, 45, 0), Vector(15, 45, 0)),
    Part.LineSegment(Vector(15, 45, 0), Vector(15, -45, 0)),
    Part.LineSegment(Vector(15, -45, 0), Vector(-15, -45, 0)),
], False)
sketch22.addConstraint([
    Sketcher.Constraint("Coincident", 0, 2, 1, 1),
    Sketcher.Constraint("Coincident", 1, 2, 2, 1),
    Sketcher.Constraint("Coincident", 2, 2, 3, 1),
    Sketcher.Constraint("Coincident", 3, 2, 0, 1),
    Sketcher.Constraint("Vertical", 0),
    Sketcher.Constraint("Horizontal", 1),
    Sketcher.Constraint("Vertical", 2),
    Sketcher.Constraint("Horizontal", 3),
    Sketcher.Constraint("Symmetric", 0, 2, 2, 2, -1, 1),
    Sketcher.Constraint("DistanceX", 1, 1, 1, 2, 30.0),
    Sketcher.Constraint("DistanceY", 0, 1, 0, 2, 89.174934),
])
pocket7 = body.newObject("PartDesign::Pocket", "Pocket006")
pocket7.Profile = sketch22
pocket7.Length = 25
pocket7.Reversed = True

sketch23 = body.newObject("Sketcher::SketchObject", "Sketch022")
sketch23.AttachmentSupport = (doc.getObject("YZ_Plane"), [""])
sketch23.MapMode = "FlatFace"
sketch23.AttachmentOffset = App.Placement(Vector(0, 0, 15), App.Rotation())
sketch23.addGeometry(Part.Circle(Vector(0, 83, 0), Vector(0, 0, 1), 4), False)
sketch23.addConstraint([
    Sketcher.Constraint("PointOnObject", 0, 3, -2),
    Sketcher.Constraint("Diameter", 0, 8.1),
    Sketcher.Constraint("DistanceY", -1, 1, 0, 3, 82.95),
])
pocket8 = body.newObject("PartDesign::Pocket", "Pocket007")
pocket8.Profile = sketch23
pocket8.Length = 32.4
doc.recompute()

boolean8 = body8.newObject("PartDesign::Boolean", "Boolean007")
boolean8.Type = "Cut"
boolean8.addObjects([body11])

doc.recompute()
